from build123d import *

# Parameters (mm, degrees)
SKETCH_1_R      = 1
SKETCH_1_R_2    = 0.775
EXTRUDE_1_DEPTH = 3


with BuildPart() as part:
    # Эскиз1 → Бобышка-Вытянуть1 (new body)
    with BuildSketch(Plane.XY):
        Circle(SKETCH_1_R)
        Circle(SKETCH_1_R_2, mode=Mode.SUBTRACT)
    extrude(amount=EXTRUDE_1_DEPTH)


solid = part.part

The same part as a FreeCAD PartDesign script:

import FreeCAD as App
import Part
import Sketcher

doc = App.newDocument("Part")
body = doc.addObject("PartDesign::Body", "Body")

sketch1 = body.newObject("Sketcher::SketchObject", "Sketch")
sketch1.AttachmentSupport = (doc.getObject("XY_Plane"), [""])
sketch1.MapMode = "FlatFace"
sketch1.addGeometry([
    Part.Circle(App.Vector(0, 0, 0), App.Vector(0, 0, 1), 1),
    Part.Circle(App.Vector(0, 0, 0), App.Vector(0, 0, 1), 0.775),
], False)
sketch1.addConstraint([
    Sketcher.Constraint("Coincident", 0, 3, -1, 1),
    Sketcher.Constraint("Coincident", 1, 3, -1, 1),
    Sketcher.Constraint("Diameter", 0, 2.0),
    Sketcher.Constraint("Diameter", 1, 1.55),
])
pad1 = body.newObject("PartDesign::Pad", "Pad")
pad1.Profile = sketch1
pad1.Length = 3

doc.recompute()
